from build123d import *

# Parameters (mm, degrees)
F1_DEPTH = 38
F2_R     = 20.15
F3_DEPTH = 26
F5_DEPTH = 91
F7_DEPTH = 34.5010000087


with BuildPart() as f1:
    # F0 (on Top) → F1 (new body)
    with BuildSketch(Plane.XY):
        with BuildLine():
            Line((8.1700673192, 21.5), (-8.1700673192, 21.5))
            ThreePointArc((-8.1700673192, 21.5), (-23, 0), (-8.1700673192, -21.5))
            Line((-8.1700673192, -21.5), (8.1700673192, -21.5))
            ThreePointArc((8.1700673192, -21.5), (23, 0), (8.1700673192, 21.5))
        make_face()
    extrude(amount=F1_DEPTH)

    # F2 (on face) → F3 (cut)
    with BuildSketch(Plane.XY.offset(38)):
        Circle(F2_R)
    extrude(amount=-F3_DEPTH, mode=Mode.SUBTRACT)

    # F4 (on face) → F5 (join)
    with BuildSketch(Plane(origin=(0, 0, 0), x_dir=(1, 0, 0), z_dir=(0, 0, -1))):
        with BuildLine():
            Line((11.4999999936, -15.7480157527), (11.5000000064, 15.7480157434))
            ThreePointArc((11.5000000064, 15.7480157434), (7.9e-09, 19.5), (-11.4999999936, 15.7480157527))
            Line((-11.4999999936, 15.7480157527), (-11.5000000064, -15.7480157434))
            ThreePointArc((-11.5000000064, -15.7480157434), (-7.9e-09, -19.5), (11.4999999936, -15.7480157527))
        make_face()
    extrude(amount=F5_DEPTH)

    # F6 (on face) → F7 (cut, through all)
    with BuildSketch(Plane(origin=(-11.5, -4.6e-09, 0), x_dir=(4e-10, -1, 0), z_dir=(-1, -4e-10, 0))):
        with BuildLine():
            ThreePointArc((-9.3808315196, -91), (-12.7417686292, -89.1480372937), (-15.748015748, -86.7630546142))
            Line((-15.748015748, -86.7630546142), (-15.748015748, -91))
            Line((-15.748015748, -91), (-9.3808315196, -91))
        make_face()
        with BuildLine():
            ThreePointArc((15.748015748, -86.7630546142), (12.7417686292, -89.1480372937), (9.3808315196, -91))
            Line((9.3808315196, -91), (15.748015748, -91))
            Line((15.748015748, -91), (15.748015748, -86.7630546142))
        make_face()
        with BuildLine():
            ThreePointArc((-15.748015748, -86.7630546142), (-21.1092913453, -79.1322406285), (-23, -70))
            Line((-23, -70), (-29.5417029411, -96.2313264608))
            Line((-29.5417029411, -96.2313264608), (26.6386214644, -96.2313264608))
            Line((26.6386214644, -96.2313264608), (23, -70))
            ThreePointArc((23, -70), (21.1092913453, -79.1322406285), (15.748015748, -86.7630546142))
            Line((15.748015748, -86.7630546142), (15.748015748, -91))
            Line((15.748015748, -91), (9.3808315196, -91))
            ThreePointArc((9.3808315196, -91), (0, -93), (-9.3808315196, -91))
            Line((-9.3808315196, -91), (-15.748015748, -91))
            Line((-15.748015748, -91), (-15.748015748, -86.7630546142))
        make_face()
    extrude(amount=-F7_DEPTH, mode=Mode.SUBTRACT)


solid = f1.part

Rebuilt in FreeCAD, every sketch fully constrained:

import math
import FreeCAD as App
import Part
import Sketcher

doc = App.newDocument("Part")
body = doc.addObject("PartDesign::Body", "Body")

sketch1 = body.newObject("Sketcher::SketchObject", "Sketch")
sketch1.AttachmentSupport = (doc.getObject("XY_Plane"), [""])
sketch1.MapMode = "FlatFace"
sketch1.addGeometry([
    Part.LineSegment(App.Vector(8, 22, 0), App.Vector(-8, 22, 0)),
    Part.ArcOfCircle(Part.Circle(App.Vector(0, 0, 0), App.Vector(0, 0, 1), 23), math.radians(111), math.radians(249)),
    Part.LineSegment(App.Vector(-8, -22, 0), App.Vector(8, -22, 0)),
    Part.ArcOfCircle(Part.Circle(App.Vector(0, 0, 0), App.Vector(0, 0, 1), 23), math.radians(-69), math.radians(69)),
], False)
sketch1.addConstraint([
    Sketcher.Constraint("Coincident", 0, 2, 1, 1),
    Sketcher.Constraint("Coincident", 1, 2, 2, 1),
    Sketcher.Constraint("Coincident", 2, 2, 3, 1),
    Sketcher.Constraint("Coincident", 3, 2, 0, 1),
    Sketcher.Constraint("Horizontal", 0),
    Sketcher.Constraint("Horizontal", 2),
    Sketcher.Constraint("Coincident", 1, 3, -1, 1),
    Sketcher.Constraint("Coincident", 3, 3, -1, 1),
    Sketcher.Constraint("Equal", 1, 3),
    Sketcher.Constraint("Vertical", 0, 2, 1, 2),
    Sketcher.Constraint("Radius", 1, 23.0),
    Sketcher.Constraint("DistanceY", 1, 2, 0, 2, 43.0),
])
pad1 = body.newObject("PartDesign::Pad", "Pad")
pad1.Profile = sketch1
pad1.Length = 38

sketch2 = body.newObject("Sketcher::SketchObject", "Sketch001")
sketch2.AttachmentSupport = (doc.getObject("XY_Plane"), [""])
sketch2.MapMode = "FlatFace"
sketch2.AttachmentOffset = App.Placement(App.Vector(0, 0, 38), App.Rotation())
sketch2.addGeometry(Part.Circle(App.Vector(0, 0, 0), App.Vector(0, 0, 1), 20), False)
sketch2.addConstraint([
    Sketcher.Constraint("Coincident", 0, 3, -1, 1),
    Sketcher.Constraint("Diameter", 0, 40.3),
])
pocket1 = body.newObject("PartDesign::Pocket", "Pocket")
pocket1.Profile = sketch2
pocket1.Length = 26

sketch3 = body.newObject("Sketcher::SketchObject", "Sketch002")
sketch3.AttachmentSupport = (doc.getObject("XY_Plane"), [""])
sketch3.MapMode = "FlatFace"
sketch3.addGeometry([
    Part.LineSegment(App.Vector(11, 16, 0), App.Vector(12, -16, 0)),
    Part.ArcOfCircle(Part.Circle(App.Vector(0, 0, 0), App.Vector(0, 0, 1), 20), math.radians(-126), math.radians(-54)),
    Part.LineSegment(App.Vector(-11, -16, 0), App.Vector(-12, 16, 0)),
    Part.ArcOfCircle(Part.Circle(App.Vector(0, 0, 0), App.Vector(0, 0, 1), 20), math.radians(54), math.radians(126)),
], False)
sketch3.addConstraint([
    Sketcher.Constraint("Coincident", 0, 2, 1, 2),
    Sketcher.Constraint("Coincident", 1, 1, 2, 1),
    Sketcher.Constraint("Coincident", 2, 2, 3, 2),
    Sketcher.Constraint("Coincident", 3, 1, 0, 1),
    Sketcher.Constraint("Vertical", 0),
    Sketcher.Constraint("Vertical", 2),
    Sketcher.Constraint("Coincident", 1, 3, -1, 1),
    Sketcher.Constraint("Coincident", 3, 3, -1, 1),
    Sketcher.Constraint("Equal", 1, 3),
    Sketcher.Constraint("Horizontal", 0, 2, 1, 1),
    Sketcher.Constraint("Radius", 1, 19.5),
    Sketcher.Constraint("DistanceX", 1, 1, 0, 2, 23.0),
])
pad2 = body.newObject("PartDesign::Pad", "Pad001")
pad2.Profile = sketch3
pad2.Length = 91
pad2.Reversed = True

sketch4 = body.newObject("Sketcher::SketchObject", "Sketch003")
sketch4.AttachmentSupport = (doc.getObject("YZ_Plane"), [""])
sketch4.MapMode = "FlatFace"
sketch4.AttachmentOffset = App.Placement(App.Vector(0, 0, -11.5), App.Rotation())
sketch4.addGeometry([
    Part.ArcOfCircle(Part.Circle(App.Vector(0, -70, 0), App.Vector(0, 0, 1), 23), math.radians(-65.93), math.radians(-46.79)),
    Part.ArcOfCircle(Part.Circle(App.Vector(0, -70, 0), App.Vector(0, 0, 1), 23), math.radians(-47), math.radians(0)),
    Part.LineSegment(App.Vector(23, -70, 0), App.Vector(30, -96, 0)),
    Part.LineSegment(App.Vector(30, -96, 0), App.Vector(-27, -96, 0)),
    Part.LineSegment(App.Vector(-27, -96, 0), App.Vector(-23, -70, 0)),
    Part.ArcOfCircle(Part.Circle(App.Vector(0, -70, 0), App.Vector(0, 0, 1), 23), math.radians(180), math.radians(227)),
    Part.ArcOfCircle(Part.Circle(App.Vector(0, -70, 0), App.Vector(0, 0, 1), 23), math.radians(-133.21), math.radians(-114.07)),
    Part.ArcOfCircle(Part.Circle(App.Vector(0, -70, 0), App.Vector(0, 0, 1), 23), math.radians(-114), math.radians(-66)),
], False)
sketch4.addConstraint([
    Sketcher.Constraint("Tangent", 0, 2, 1, 1),
    Sketcher.Constraint("Coincident", 1, 2, 2, 1),
    Sketcher.Constraint("Coincident", 2, 2, 3, 1),
    Sketcher.Constraint("Coincident", 3, 2, 4, 1),
    Sketcher.Constraint("Coincident", 4, 2, 5, 1),
    Sketcher.Constraint("Tangent", 5, 2, 6, 1),
    Sketcher.Constraint("Tangent", 6, 2, 7, 1),
    Sketcher.Constraint("Tangent", 7, 2, 0, 1),
    Sketcher.Constraint("Horizontal", 3),
    Sketcher.Constraint("Coincident", 5, 3, 0, 3),
    Sketcher.Constraint("Equal", 0, 1),
    Sketcher.Constraint("Equal", 1, 5),
    Sketcher.Constraint("Symmetric", 1, 2, 4, 2, -2),
    Sketcher.Constraint("Horizontal", 7, 3, 1, 2),
    Sketcher.Constraint("Horizontal", 0, 2, 5, 2),
    Sketcher.Constraint("Horizontal", 6, 2, 7, 2),
    Sketcher.Constraint("Radius", 0, 23.0),
    Sketcher.Constraint("DistanceY", 0, 3, -1, 1, 70.0),
    Sketcher.Constraint("DistanceY", 6, 2, -1, 1, 91.0),
    Sketcher.Constraint("DistanceX", 3, 2, 3, 1, 56.180324),
    Sketcher.Constraint("DistanceX", 3, 2, -1, 1, 26.638621),
    Sketcher.Constraint("DistanceY", 2, 2, 0, 2, 9.468272),
    Sketcher.Constraint("Distance", 2, 27.034725),
])
pocket2 = body.newObject("PartDesign::Pocket", "Pocket001")
pocket2.Profile = sketch4
pocket2.Type = "ThroughAll"
pocket2.Reversed = True

doc.recompute()
